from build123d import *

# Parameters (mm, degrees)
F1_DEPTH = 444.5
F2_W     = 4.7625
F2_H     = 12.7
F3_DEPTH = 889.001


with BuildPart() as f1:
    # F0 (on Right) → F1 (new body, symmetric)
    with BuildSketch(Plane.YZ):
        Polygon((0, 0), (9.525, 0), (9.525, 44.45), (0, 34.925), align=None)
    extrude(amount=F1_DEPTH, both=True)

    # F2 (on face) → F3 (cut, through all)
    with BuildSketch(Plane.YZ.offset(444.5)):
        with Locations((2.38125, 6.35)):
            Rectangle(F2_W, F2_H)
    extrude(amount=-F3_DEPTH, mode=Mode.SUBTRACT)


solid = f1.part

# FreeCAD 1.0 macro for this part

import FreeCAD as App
import Part
import Sketcher
Q = App.Units.Quantity

doc = App.newDocument("Part")
body = doc.addObject("PartDesign::Body", "Body")

# Sketch on YZ plane
sketch1 = doc.addObject("Sketcher::SketchObject", "Sketch")
body.addObject(sketch1)
sketch1.AttachmentSupport = (doc.YZ_Plane, [""])
sketch1.MapMode = "FlatFace"
sketch1.addGeometry(Part.LineSegment(App.Vector(0, 0, 0), App.Vector(10, 0, 0)), False)
sketch1.addGeometry(Part.LineSegment(App.Vector(10, 0, 0), App.Vector(10, 44, 0)), False)
sketch1.addGeometry(Part.LineSegment(App.Vector(10, 44, 0), App.Vector(0, 35, 0)), False)
sketch1.addGeometry(Part.LineSegment(App.Vector(0, 35, 0), App.Vector(0, 0, 0)), False)
sketch1.addConstraint(Sketcher.Constraint("Coincident", 0, 2, 1, 1))
sketch1.addConstraint(Sketcher.Constraint("Coincident", 1, 2, 2, 1))
sketch1.addConstraint(Sketcher.Constraint("Coincident", 2, 2, 3, 1))
sketch1.addConstraint(Sketcher.Constraint("Coincident", 3, 2, 0, 1))
sketch1.addConstraint(Sketcher.Constraint("Horizontal", 0))
sketch1.addConstraint(Sketcher.Constraint("Vertical", 1))
sketch1.addConstraint(Sketcher.Constraint("Vertical", 3))
sketch1.addConstraint(Sketcher.Constraint("Coincident", 3, 2, -1, 1))
sketch1.addConstraint(Sketcher.Constraint("Angle", 2, Q("-135 deg")))
sketch1.addConstraint(Sketcher.Constraint("DistanceY", 1, 1, 1, 2, Q("1.75 in")))
sketch1.addConstraint(Sketcher.Constraint("DistanceX", 0, 1, 0, 2, Q("0.375 in")))
pad1 = doc.addObject("PartDesign::Pad", "Pad")
body.addObject(pad1)
pad1.Profile = sketch1
pad1.Length = Q("35 in")
pad1.Midplane = True

# Sketch on YZ plane
sketch2 = doc.addObject("Sketcher::SketchObject", "Sketch001")
body.addObject(sketch2)
sketch2.AttachmentSupport = (doc.YZ_Plane, [""])
sketch2.MapMode = "FlatFace"
sketch2.AttachmentOffset = App.Placement(App.Vector(0, 0, 17.5 * 25.4), App.Rotation())
sketch2.addGeometry(Part.LineSegment(App.Vector(0, 12.7, 0), App.Vector(0, 0, 0)), False)
sketch2.addGeometry(Part.LineSegment(App.Vector(0, 0, 0), App.Vector(4.8, 0, 0)), False)
sketch2.addGeometry(Part.LineSegment(App.Vector(4.8, 0, 0), App.Vector(4.8, 12.7, 0)), False)
sketch2.addGeometry(Part.LineSegment(App.Vector(4.8, 12.7, 0), App.Vector(0, 12.7, 0)), False)
sketch2.addConstraint(Sketcher.Constraint("Coincident", 0, 2, 1, 1))
sketch2.addConstraint(Sketcher.Constraint("Coincident", 1, 2, 2, 1))
sketch2.addConstraint(Sketcher.Constraint("Coincident", 2, 2, 3, 1))
sketch2.addConstraint(Sketcher.Constraint("Coincident", 3, 2, 0, 1))
sketch2.addConstraint(Sketcher.Constraint("Vertical", 0))
sketch2.addConstraint(Sketcher.Constraint("Horizontal", 1))
sketch2.addConstraint(Sketcher.Constraint("Vertical", 2))
sketch2.addConstraint(Sketcher.Constraint("Horizontal", 3))
sketch2.addConstraint(Sketcher.Constraint("Coincident", 0, 2, -1, 1))
sketch2.addConstraint(Sketcher.Constraint("DistanceY", 0, 2, 0, 1, Q("0.5 in")))
sketch2.addConstraint(Sketcher.Constraint("DistanceX", 1, 1, 1, 2, Q("0.1875 in")))
pocket1 = doc.addObject("PartDesign::Pocket", "Pocket")
body.addObject(pocket1)
pocket1.Profile = sketch2
pocket1.Type = "ThroughAll"

doc.recompute()
